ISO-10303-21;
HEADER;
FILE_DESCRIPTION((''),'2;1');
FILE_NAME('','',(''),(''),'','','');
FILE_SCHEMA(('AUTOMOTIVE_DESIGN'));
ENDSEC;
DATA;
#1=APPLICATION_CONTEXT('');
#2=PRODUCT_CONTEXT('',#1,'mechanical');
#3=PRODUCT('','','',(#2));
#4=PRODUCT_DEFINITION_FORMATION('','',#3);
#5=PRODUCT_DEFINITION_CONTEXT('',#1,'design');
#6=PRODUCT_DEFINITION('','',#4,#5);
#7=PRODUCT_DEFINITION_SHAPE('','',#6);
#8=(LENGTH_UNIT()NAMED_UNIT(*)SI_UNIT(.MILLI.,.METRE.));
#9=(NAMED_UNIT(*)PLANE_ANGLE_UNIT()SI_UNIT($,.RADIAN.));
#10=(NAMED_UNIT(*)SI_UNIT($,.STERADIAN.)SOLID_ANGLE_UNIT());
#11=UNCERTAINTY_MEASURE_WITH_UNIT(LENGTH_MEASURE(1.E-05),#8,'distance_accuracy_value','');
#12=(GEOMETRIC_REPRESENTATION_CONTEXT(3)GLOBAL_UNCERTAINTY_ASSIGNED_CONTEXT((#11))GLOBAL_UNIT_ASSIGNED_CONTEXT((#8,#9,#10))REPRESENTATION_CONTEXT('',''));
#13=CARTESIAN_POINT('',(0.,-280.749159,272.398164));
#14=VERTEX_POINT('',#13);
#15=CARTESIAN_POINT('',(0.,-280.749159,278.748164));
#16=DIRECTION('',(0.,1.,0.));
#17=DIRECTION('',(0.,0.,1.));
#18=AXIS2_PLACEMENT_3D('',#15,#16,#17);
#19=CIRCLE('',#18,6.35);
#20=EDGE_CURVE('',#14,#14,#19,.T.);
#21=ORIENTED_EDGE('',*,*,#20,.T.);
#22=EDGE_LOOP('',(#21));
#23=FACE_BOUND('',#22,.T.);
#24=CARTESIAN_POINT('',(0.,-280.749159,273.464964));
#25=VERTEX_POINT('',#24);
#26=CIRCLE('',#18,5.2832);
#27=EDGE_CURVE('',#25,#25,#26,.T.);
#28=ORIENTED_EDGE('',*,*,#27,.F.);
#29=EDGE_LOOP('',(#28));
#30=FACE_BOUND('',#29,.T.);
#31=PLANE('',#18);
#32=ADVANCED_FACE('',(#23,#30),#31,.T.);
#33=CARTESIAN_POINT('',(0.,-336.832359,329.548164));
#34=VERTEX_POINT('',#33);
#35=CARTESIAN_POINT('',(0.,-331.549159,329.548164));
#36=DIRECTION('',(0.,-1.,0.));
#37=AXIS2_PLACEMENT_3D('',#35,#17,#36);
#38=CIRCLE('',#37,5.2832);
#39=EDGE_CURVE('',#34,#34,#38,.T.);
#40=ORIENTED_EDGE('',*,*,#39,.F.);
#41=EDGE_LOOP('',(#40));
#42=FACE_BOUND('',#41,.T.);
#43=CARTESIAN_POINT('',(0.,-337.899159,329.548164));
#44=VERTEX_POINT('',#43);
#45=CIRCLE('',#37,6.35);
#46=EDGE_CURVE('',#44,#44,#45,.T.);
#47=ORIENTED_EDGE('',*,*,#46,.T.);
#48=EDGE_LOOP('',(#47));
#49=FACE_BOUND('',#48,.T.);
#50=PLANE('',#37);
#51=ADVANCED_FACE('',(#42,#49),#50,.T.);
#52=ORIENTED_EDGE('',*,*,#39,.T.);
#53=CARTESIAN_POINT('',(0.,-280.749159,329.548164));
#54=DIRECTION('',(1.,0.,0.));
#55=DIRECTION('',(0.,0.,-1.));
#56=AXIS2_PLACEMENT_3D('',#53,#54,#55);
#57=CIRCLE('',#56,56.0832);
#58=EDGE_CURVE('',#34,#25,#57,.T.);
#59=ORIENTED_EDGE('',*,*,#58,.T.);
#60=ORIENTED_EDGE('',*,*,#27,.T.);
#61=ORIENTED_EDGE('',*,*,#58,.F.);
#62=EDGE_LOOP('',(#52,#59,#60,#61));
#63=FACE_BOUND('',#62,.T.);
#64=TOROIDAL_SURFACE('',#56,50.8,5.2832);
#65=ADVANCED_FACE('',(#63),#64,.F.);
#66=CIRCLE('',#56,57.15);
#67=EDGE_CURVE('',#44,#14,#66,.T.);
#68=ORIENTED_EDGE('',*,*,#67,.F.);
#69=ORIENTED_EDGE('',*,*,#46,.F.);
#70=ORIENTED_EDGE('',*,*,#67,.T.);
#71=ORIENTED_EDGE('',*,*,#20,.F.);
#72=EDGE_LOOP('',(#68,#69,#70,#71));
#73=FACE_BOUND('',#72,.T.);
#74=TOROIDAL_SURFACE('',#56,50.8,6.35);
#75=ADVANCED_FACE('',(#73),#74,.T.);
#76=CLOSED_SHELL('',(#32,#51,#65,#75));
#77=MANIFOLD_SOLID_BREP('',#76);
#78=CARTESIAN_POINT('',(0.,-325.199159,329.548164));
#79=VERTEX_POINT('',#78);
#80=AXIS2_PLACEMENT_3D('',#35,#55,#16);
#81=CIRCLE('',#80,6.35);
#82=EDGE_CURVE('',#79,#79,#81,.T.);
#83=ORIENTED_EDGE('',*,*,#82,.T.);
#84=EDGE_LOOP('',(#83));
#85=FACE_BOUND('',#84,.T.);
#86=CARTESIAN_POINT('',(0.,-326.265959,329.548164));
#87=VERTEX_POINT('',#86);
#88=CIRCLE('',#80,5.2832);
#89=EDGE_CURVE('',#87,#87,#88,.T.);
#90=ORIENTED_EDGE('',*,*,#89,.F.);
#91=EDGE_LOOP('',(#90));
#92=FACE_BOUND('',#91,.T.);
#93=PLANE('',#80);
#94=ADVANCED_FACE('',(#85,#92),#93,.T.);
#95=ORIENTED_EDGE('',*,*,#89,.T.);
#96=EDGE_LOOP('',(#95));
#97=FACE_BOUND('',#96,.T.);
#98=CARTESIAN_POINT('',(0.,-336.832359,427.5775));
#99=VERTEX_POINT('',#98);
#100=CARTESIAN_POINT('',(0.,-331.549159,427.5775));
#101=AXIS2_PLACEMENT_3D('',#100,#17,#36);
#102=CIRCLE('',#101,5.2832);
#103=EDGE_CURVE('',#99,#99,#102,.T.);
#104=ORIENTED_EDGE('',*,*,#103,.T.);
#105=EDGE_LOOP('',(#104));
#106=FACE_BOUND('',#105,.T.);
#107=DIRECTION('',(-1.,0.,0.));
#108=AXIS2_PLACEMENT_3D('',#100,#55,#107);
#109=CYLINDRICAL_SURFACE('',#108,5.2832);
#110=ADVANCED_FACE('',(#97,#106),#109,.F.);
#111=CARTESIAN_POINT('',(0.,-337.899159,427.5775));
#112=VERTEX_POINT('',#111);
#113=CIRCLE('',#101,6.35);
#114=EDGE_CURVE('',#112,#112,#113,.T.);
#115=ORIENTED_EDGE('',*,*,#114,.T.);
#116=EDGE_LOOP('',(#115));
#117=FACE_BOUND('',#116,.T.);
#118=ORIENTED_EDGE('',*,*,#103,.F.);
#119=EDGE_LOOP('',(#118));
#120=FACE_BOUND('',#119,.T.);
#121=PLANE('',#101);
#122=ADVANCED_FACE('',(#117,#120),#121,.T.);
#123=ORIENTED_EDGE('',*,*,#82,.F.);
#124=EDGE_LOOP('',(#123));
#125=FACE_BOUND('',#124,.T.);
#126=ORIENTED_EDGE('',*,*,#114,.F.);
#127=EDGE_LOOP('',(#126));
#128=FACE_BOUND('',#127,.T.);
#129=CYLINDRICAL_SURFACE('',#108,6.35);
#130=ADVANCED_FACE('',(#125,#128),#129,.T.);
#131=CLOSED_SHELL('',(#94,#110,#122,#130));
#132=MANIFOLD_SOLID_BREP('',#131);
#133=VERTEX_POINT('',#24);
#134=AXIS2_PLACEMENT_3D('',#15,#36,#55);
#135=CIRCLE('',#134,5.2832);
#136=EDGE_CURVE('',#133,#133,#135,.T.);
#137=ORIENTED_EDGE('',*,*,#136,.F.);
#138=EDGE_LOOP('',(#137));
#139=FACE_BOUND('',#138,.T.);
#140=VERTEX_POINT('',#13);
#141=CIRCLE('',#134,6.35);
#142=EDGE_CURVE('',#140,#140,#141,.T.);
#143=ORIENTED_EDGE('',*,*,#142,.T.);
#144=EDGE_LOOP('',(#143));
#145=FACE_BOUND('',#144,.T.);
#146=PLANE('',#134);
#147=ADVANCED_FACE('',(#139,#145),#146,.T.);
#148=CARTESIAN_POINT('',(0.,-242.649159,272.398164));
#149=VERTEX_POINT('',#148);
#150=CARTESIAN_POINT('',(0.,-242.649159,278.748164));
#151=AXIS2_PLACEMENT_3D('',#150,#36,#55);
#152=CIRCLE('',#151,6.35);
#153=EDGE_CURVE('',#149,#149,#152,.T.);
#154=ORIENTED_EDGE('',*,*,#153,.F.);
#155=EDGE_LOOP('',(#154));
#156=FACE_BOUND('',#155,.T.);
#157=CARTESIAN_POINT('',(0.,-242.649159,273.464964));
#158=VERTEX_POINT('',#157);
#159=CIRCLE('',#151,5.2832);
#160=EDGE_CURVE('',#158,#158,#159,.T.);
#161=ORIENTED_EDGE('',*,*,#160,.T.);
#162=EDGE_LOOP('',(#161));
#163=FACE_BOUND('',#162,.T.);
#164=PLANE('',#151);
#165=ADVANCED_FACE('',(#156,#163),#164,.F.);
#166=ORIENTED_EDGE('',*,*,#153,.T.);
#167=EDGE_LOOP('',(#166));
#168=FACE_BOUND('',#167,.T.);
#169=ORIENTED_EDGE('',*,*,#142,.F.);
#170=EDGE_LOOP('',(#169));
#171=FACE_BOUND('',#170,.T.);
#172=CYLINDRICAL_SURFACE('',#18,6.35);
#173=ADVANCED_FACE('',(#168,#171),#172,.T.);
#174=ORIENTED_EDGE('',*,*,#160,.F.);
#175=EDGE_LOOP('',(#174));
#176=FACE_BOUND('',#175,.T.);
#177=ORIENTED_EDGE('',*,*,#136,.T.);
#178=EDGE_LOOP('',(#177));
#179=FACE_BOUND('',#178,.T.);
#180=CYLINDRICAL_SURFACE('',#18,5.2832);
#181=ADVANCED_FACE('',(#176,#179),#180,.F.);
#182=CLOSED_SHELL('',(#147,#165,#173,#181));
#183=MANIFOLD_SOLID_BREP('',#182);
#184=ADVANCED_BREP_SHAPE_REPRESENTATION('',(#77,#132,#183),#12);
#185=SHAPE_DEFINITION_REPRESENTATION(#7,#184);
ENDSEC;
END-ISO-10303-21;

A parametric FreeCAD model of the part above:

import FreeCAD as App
import Part
import Sketcher

V = App.Vector
Q = App.Units.Quantity

doc = App.newDocument("Part")
body = doc.addObject("PartDesign::Body", "Body")

sketch1 = body.newObject("Sketcher::SketchObject", "Sketch")
sketch1.AttachmentSupport = (doc.getObject("XZ_Plane"), [""])
sketch1.MapMode = "FlatFace"
sketch1.AttachmentOffset = App.Placement(V(0, 0, 242.649159), App.Rotation())
sketch1.addGeometry([
    Part.Circle(V(0, 279, 0), V(0, 0, 1), 6),
    Part.Circle(V(0, 279, 0), V(0, 0, 1), 5),
], False)
sketch1.addConstraint([
    Sketcher.Constraint("Coincident", 1, 3, 0, 3),
    Sketcher.Constraint("PointOnObject", 0, 3, -2),
    Sketcher.Constraint("Diameter", 0, Q("0.5 in")),
    Sketcher.Constraint("Diameter", 1, Q("0.416 in")),
    Sketcher.Constraint("DistanceY", -1, 1, 0, 3, 278.748164),
])
pad1 = body.newObject("PartDesign::Pad", "Pad")
pad1.Profile = sketch1
pad1.Length = Q("1.5 in")
body2 = doc.addObject("PartDesign::Body", "Body001")

sketch2 = body2.newObject("Sketcher::SketchObject", "Sketch001")
sketch2.AttachmentSupport = (doc.getObject("XZ_Plane001"), [""])
sketch2.MapMode = "FlatFace"
sketch2.AttachmentOffset = App.Placement(V(0, 0, 280.749159), App.Rotation())
sketch2.addGeometry([
    Part.Circle(V(0, 279, 0), V(0, 0, 1), 6),
    Part.Circle(V(0, 279, 0), V(0, 0, 1), 5),
], False)
sketch2.addGeometry(Part.LineSegment(V(0, 330, 0), V(-10, 330, 0)), True)
sketch2.addConstraint([
    Sketcher.Constraint("Horizontal", 2),
    Sketcher.Constraint("Coincident", 1, 3, 0, 3),
    Sketcher.Constraint("PointOnObject", 0, 3, -2),
    Sketcher.Constraint("PointOnObject", 2, 1, -2),
    Sketcher.Constraint("Diameter", 0, Q("0.5 in")),
    Sketcher.Constraint("Diameter", 1, Q("0.416 in")),
    Sketcher.Constraint("DistanceY", 0, 3, 2, 1, Q("2 in")),
    Sketcher.Constraint("DistanceX", 2, 2, 2, 1, 10.0),
    Sketcher.Constraint("DistanceY", -1, 1, 0, 3, 278.748164),
])
revolution = body2.newObject("PartDesign::Revolution", "Revolution")
revolution.Profile = sketch2
revolution.ReferenceAxis = (sketch2, ["Axis0"])
revolution.Angle = 90
body3 = doc.addObject("PartDesign::Body", "Body002")

sketch3 = body3.newObject("Sketcher::SketchObject", "Sketch002")
sketch3.AttachmentSupport = (doc.getObject("XY_Plane002"), [""])
sketch3.MapMode = "FlatFace"
sketch3.AttachmentOffset = App.Placement(V(0, 0, 329.548164), App.Rotation())
sketch3.addGeometry([
    Part.Circle(V(0, -332, 0), V(0, 0, 1), 6),
    Part.Circle(V(0, -332, 0), V(0, 0, 1), 5),
], False)
sketch3.addConstraint([
    Sketcher.Constraint("Coincident", 1, 3, 0, 3),
    Sketcher.Constraint("PointOnObject", 0, 3, -2),
    Sketcher.Constraint("Diameter", 0, Q("0.5 in")),
    Sketcher.Constraint("Diameter", 1, Q("0.416 in")),
    Sketcher.Constraint("DistanceY", 0, 3, -1, 1, 331.549159),
])
pad2 = body3.newObject("PartDesign::Pad", "Pad001")
pad2.Profile = sketch3
pad2.Length = 98.029336

doc.recompute()
